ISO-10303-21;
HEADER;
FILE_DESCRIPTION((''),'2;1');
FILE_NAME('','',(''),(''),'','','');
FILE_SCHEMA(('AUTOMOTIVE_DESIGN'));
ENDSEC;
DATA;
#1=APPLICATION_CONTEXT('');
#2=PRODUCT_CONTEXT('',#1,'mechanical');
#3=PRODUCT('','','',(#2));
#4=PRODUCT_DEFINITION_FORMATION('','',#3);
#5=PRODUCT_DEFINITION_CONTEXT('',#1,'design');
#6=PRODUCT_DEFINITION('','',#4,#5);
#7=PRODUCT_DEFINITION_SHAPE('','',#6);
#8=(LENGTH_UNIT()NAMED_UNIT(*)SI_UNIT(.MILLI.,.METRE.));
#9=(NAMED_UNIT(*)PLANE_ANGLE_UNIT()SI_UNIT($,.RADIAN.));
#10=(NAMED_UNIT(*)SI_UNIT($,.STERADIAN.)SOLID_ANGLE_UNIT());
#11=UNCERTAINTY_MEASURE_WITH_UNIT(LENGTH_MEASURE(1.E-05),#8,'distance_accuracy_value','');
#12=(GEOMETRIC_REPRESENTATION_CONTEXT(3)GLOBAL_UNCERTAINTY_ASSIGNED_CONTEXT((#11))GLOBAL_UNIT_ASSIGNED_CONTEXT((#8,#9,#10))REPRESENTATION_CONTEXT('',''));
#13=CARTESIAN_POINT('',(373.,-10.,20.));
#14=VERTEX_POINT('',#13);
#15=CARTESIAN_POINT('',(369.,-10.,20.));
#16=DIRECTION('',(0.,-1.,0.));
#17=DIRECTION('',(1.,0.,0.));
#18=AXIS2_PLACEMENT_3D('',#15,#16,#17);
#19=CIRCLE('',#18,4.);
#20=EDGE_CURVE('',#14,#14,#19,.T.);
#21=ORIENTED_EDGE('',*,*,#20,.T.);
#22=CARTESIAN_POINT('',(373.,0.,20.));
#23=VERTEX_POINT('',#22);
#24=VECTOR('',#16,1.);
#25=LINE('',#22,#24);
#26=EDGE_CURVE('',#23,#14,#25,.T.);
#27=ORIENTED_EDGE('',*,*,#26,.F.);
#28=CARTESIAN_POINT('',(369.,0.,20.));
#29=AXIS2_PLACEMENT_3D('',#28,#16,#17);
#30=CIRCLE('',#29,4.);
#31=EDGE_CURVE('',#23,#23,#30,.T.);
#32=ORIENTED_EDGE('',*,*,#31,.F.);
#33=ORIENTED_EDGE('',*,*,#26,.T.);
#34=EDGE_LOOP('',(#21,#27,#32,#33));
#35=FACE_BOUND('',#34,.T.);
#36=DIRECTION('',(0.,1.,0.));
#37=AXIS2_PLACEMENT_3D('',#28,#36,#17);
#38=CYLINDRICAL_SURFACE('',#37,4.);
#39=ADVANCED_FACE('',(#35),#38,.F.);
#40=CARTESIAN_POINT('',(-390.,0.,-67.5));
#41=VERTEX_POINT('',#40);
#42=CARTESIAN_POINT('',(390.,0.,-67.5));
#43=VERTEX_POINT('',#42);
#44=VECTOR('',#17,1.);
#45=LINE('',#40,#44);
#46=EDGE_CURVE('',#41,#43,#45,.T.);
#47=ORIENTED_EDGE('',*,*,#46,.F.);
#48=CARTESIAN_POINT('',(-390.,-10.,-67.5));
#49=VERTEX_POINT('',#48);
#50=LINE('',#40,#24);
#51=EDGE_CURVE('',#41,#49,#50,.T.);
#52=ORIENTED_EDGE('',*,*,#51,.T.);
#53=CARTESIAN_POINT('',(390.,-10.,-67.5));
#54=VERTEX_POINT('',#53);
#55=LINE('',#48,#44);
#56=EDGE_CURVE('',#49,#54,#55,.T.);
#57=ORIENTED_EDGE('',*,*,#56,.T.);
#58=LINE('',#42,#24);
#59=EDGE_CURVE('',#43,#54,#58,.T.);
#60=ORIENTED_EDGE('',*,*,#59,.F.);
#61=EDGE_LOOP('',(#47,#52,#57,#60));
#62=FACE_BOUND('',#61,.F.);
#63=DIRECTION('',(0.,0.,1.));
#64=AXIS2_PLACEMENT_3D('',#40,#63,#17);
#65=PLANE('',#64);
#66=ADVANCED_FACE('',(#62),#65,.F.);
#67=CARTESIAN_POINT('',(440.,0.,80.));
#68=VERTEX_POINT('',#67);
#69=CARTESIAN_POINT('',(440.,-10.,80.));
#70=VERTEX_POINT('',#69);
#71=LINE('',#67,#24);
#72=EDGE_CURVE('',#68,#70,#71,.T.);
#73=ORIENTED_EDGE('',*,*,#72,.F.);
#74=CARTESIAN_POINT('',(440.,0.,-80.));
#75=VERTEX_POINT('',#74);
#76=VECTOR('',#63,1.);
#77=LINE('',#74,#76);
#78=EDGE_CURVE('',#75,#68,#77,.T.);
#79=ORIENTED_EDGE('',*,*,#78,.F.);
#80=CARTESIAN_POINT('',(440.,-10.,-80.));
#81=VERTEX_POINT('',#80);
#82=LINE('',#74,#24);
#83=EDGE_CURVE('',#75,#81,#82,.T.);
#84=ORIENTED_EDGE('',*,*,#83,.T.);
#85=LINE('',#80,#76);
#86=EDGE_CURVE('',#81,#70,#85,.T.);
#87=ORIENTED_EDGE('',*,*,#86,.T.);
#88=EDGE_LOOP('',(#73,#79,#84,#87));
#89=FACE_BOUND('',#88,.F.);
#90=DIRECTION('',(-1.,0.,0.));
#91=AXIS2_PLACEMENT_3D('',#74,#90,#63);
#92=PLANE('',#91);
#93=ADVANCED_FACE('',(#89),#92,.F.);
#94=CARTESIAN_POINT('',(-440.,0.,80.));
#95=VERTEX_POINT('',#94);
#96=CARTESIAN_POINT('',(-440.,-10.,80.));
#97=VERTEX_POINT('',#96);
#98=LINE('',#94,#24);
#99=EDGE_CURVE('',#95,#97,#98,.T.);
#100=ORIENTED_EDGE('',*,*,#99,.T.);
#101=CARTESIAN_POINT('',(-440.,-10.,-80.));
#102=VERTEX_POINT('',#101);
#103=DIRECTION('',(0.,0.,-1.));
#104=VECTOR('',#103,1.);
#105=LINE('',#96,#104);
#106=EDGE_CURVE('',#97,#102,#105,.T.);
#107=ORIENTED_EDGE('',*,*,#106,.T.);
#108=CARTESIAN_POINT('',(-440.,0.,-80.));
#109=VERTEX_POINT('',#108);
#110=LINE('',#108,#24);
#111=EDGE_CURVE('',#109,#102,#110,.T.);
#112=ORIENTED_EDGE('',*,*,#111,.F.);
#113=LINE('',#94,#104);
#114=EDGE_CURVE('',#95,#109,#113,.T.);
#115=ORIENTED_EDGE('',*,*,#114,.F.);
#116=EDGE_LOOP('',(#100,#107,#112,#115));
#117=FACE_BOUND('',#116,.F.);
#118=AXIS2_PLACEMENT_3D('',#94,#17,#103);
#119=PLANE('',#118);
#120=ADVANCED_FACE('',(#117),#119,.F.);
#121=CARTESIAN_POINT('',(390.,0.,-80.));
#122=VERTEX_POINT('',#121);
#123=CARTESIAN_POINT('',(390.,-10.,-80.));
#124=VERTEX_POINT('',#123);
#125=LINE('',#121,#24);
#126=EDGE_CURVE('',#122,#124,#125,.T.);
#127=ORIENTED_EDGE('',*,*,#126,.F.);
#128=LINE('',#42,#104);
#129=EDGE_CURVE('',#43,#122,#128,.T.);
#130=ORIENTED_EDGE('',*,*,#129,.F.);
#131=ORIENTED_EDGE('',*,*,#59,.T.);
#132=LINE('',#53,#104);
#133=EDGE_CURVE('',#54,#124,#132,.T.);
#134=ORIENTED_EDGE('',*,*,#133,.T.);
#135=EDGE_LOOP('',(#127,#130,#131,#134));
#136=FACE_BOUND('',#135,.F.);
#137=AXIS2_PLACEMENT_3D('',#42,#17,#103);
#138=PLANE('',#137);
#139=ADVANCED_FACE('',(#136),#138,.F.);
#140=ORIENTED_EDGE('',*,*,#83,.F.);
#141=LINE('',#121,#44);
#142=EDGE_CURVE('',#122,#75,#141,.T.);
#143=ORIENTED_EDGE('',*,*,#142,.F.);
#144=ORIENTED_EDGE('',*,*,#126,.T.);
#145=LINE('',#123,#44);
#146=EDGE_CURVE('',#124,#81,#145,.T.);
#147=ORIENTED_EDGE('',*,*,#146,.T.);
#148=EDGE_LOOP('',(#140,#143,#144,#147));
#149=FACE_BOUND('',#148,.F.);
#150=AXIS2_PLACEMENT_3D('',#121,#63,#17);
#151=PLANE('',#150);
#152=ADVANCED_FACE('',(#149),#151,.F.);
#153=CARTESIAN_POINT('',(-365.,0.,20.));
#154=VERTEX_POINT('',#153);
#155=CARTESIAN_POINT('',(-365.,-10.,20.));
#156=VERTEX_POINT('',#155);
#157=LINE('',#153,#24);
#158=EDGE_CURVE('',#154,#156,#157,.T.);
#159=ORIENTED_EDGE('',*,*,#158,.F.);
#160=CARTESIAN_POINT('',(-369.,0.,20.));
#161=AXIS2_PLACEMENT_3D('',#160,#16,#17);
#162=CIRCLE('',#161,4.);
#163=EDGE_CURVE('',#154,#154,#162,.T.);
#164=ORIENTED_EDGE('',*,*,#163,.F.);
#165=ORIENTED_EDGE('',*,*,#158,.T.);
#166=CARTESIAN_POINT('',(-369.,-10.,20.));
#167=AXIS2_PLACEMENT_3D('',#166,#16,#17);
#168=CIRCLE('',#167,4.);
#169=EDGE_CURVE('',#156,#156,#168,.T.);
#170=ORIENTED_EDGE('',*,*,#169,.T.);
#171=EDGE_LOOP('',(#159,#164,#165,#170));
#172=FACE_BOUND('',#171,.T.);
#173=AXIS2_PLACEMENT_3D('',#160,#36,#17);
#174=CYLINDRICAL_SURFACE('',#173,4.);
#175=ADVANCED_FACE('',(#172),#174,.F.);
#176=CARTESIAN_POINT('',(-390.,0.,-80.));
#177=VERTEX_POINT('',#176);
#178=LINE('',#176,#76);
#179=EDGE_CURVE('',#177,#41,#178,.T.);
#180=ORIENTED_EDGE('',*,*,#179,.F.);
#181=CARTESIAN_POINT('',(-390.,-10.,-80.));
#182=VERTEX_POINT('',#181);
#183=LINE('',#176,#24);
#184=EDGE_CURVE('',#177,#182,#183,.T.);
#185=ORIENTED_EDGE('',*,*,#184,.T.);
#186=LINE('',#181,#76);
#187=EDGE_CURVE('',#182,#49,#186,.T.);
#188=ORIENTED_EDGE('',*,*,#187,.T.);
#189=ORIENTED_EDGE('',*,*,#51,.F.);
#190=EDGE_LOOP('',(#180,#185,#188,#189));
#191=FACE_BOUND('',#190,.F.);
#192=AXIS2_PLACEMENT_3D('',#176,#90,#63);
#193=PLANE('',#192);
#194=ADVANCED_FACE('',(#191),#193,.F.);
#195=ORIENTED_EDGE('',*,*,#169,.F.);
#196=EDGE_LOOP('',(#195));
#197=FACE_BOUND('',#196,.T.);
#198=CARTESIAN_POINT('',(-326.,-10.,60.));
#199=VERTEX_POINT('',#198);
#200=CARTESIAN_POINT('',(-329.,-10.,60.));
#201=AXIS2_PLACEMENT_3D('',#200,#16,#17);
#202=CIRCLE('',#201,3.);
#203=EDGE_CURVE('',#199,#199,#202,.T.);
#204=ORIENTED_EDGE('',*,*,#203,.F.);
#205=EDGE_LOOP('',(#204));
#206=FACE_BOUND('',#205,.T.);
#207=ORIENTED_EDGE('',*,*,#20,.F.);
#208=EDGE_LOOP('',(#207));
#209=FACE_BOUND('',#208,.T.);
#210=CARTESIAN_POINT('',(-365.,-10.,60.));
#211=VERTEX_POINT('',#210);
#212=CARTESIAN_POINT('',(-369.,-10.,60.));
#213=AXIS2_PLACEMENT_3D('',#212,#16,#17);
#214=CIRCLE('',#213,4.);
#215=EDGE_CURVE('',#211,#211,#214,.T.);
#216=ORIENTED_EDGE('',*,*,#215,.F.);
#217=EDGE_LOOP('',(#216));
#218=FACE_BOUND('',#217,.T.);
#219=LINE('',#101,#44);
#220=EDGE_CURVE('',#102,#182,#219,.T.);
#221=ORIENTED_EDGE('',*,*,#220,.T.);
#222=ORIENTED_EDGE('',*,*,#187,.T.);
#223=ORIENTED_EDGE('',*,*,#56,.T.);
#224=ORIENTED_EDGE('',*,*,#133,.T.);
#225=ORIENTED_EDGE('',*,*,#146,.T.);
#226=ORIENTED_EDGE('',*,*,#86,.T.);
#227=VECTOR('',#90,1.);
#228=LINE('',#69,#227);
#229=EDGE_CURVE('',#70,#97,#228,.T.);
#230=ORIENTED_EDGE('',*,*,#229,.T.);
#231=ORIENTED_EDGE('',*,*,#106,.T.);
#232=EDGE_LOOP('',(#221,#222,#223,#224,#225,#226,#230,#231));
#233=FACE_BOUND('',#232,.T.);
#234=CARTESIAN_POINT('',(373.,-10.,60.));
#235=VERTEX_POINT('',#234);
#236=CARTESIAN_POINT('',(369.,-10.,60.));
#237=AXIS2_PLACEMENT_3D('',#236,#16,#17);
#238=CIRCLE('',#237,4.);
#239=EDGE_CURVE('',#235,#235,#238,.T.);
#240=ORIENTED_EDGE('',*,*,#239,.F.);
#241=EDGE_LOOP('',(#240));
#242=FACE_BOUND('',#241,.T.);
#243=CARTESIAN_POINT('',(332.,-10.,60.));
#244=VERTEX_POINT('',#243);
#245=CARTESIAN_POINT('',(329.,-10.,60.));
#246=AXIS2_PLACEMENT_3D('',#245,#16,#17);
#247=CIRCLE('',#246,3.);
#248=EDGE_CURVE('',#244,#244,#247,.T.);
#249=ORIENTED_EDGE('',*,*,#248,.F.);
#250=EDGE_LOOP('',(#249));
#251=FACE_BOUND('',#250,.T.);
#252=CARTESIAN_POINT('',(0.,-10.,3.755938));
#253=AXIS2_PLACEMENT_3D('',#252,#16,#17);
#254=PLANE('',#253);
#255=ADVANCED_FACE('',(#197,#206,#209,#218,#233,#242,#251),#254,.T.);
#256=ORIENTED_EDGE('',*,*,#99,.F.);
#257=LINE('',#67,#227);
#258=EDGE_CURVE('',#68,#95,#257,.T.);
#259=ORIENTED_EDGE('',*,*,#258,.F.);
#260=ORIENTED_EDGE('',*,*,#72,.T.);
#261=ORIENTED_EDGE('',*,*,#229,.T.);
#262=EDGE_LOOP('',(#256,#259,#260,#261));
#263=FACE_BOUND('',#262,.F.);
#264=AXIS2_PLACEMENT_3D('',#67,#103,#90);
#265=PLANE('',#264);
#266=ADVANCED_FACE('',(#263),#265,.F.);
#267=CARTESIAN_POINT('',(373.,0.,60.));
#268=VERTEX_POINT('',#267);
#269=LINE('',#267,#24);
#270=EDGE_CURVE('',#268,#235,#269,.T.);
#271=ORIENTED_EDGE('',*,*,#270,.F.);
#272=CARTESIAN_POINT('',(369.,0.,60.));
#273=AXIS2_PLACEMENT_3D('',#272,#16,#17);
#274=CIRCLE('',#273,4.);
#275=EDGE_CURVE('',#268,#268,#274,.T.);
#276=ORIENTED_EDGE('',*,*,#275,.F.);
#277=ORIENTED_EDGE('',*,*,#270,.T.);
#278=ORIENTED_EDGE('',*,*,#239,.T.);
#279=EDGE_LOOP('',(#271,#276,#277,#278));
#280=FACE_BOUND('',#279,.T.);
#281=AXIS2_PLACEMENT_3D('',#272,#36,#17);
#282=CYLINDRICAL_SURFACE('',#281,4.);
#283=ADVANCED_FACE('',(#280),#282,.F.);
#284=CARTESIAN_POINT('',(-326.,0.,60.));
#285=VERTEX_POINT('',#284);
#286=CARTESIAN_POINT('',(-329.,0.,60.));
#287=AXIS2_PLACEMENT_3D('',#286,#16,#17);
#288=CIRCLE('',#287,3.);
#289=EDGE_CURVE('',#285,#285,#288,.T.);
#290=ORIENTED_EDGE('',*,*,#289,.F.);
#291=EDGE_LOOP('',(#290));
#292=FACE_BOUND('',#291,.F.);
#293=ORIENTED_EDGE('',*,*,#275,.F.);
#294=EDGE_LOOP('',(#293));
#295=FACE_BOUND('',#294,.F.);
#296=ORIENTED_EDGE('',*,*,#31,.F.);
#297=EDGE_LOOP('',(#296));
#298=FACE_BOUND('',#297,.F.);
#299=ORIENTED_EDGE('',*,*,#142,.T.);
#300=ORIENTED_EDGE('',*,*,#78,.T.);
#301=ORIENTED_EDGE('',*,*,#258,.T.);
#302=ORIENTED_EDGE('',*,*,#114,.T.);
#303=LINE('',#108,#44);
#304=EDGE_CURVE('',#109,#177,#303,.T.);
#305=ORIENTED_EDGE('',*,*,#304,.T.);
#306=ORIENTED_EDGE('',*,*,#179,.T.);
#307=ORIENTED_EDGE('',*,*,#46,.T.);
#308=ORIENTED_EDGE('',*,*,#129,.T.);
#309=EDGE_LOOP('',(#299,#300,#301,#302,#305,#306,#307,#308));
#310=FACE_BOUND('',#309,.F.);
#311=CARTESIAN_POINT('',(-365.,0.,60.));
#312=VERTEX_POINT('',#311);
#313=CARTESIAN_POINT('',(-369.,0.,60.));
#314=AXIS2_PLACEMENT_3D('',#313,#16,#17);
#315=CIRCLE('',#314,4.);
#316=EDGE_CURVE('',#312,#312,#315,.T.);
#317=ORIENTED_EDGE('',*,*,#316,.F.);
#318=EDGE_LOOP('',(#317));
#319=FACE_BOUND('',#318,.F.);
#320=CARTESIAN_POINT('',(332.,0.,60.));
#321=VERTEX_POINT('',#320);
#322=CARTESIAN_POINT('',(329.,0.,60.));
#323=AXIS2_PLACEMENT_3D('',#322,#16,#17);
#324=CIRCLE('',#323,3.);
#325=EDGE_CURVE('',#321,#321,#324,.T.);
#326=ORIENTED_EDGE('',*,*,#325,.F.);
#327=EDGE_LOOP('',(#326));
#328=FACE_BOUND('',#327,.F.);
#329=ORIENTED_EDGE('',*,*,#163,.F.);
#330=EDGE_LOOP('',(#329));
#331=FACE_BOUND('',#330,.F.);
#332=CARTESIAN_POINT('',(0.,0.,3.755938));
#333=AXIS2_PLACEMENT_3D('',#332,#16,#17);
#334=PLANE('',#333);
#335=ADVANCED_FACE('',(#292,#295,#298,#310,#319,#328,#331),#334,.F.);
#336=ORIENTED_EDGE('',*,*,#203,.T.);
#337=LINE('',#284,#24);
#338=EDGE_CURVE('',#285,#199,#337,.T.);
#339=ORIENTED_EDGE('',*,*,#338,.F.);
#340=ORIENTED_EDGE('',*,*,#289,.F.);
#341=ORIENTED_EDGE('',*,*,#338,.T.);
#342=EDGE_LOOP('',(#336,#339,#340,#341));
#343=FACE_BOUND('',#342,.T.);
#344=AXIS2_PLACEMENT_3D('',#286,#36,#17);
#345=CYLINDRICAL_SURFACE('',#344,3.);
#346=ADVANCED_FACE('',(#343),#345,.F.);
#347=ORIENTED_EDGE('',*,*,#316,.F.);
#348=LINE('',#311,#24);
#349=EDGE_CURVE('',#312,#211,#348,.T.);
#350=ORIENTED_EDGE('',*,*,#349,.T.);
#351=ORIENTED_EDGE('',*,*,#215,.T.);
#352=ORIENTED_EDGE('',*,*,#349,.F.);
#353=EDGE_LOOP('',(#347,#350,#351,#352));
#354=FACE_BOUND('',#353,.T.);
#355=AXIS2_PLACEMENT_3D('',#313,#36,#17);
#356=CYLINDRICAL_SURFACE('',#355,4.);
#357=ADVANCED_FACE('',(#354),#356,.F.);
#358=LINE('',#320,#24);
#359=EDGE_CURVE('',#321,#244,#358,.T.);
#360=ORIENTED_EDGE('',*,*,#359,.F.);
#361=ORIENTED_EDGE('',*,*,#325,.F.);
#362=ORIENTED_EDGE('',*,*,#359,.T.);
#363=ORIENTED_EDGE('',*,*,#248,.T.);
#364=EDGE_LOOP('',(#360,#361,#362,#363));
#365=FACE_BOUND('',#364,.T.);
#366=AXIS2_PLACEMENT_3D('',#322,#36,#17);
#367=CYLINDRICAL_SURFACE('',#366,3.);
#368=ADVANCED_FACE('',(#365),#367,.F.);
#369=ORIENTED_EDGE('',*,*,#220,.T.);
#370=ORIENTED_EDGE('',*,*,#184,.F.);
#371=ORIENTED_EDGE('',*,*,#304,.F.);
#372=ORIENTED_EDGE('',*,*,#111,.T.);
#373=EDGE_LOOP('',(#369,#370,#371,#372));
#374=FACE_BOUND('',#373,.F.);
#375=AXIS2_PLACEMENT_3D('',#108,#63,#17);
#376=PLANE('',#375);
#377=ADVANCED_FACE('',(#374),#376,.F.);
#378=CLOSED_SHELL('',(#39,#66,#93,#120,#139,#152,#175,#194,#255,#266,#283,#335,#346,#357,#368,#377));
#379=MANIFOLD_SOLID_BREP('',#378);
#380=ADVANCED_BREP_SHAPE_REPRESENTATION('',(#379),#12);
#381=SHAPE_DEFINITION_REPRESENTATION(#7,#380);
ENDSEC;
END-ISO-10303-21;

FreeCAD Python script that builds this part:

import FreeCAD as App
import Part
import Sketcher
Q = App.Units.Quantity

doc = App.newDocument("Part")
body = doc.addObject("PartDesign::Body", "Body")

sketch1 = body.newObject("Sketcher::SketchObject", "Sketch")
sketch1.AttachmentSupport = (doc.getObject("XZ_Plane"), [""])
sketch1.MapMode = "FlatFace"
sketch1.addGeometry([
    Part.LineSegment(App.Vector(390, -80, 0), App.Vector(440, -80, 0)),
    Part.LineSegment(App.Vector(440, -80, 0), App.Vector(440, 80, 0)),
    Part.LineSegment(App.Vector(440, 80, 0), App.Vector(-440, 80, 0)),
    Part.LineSegment(App.Vector(-440, 80, 0), App.Vector(-440, -80, 0)),
    Part.LineSegment(App.Vector(-440, -80, 0), App.Vector(-390, -80, 0)),
    Part.LineSegment(App.Vector(-390, -80, 0), App.Vector(-390, -67.5, 0)),
    Part.LineSegment(App.Vector(-390, -67.5, 0), App.Vector(390, -67.5, 0)),
    Part.LineSegment(App.Vector(390, -67.5, 0), App.Vector(390, -80, 0)),
    Part.Circle(App.Vector(-369, 20, 0), App.Vector(0, 0, 1), 4),
    Part.Circle(App.Vector(369, 20, 0), App.Vector(0, 0, 1), 4),
    Part.Circle(App.Vector(-369, 60, 0), App.Vector(0, 0, 1), 4),
    Part.Circle(App.Vector(-329, 60, 0), App.Vector(0, 0, 1), 3),
    Part.Circle(App.Vector(329, 60, 0), App.Vector(0, 0, 1), 3),
    Part.Circle(App.Vector(369, 60, 0), App.Vector(0, 0, 1), 4),
], False)
sketch1.addConstraint([
    Sketcher.Constraint("Coincident", 0, 2, 1, 1),
    Sketcher.Constraint("Coincident", 1, 2, 2, 1),
    Sketcher.Constraint("Coincident", 2, 2, 3, 1),
    Sketcher.Constraint("Coincident", 3, 2, 4, 1),
    Sketcher.Constraint("Coincident", 4, 2, 5, 1),
    Sketcher.Constraint("Coincident", 5, 2, 6, 1),
    Sketcher.Constraint("Coincident", 6, 2, 7, 1),
    Sketcher.Constraint("Coincident", 7, 2, 0, 1),
    Sketcher.Constraint("Horizontal", 0),
    Sketcher.Constraint("Vertical", 1),
    Sketcher.Constraint("Horizontal", 2),
    Sketcher.Constraint("Vertical", 3),
    Sketcher.Constraint("Horizontal", 4),
    Sketcher.Constraint("Vertical", 5),
    Sketcher.Constraint("Horizontal", 6),
    Sketcher.Constraint("Vertical", 7),
    Sketcher.Constraint("Equal", 8, 9),
    Sketcher.Constraint("Equal", 9, 10),
    Sketcher.Constraint("Equal", 11, 12),
    Sketcher.Constraint("Equal", 10, 13),
    Sketcher.Constraint("Symmetric", 0, 2, 2, 2, -1, 1),
    Sketcher.Constraint("Symmetric", 8, 3, 9, 3, -2),
    Sketcher.Constraint("Symmetric", 11, 3, 12, 3, -2),
    Sketcher.Constraint("Symmetric", 10, 3, 13, 3, -2),
    Sketcher.Constraint("Symmetric", 4, 2, 7, 2, -2),
    Sketcher.Constraint("Horizontal", 10, 3, 11, 3),
    Sketcher.Constraint("Vertical", 8, 3, 10, 3),
    Sketcher.Constraint("Diameter", 8, Q("8 mm")),
    Sketcher.Constraint("Diameter", 11, Q("6 mm")),
    Sketcher.Constraint("DistanceX", 0, 1, 0, 2, Q("50 mm")),
    Sketcher.Constraint("DistanceX", 2, 2, 2, 1, Q("880 mm")),
    Sketcher.Constraint("DistanceY", 1, 1, 1, 2, Q("160 mm")),
    Sketcher.Constraint("DistanceY", 5, 1, 5, 2, Q("12.5 mm")),
    Sketcher.Constraint("DistanceX", 8, 3, -1, 1, Q("369 mm")),
    Sketcher.Constraint("DistanceY", -1, 1, 8, 3, Q("20 mm")),
    Sketcher.Constraint("DistanceY", -1, 1, 10, 3, Q("60 mm")),
    Sketcher.Constraint("DistanceX", 11, 3, -1, 1, Q("329 mm")),
])
pad1 = body.newObject("PartDesign::Pad", "Pad")
pad1.Profile = sketch1
pad1.Length = 10

doc.recompute()
